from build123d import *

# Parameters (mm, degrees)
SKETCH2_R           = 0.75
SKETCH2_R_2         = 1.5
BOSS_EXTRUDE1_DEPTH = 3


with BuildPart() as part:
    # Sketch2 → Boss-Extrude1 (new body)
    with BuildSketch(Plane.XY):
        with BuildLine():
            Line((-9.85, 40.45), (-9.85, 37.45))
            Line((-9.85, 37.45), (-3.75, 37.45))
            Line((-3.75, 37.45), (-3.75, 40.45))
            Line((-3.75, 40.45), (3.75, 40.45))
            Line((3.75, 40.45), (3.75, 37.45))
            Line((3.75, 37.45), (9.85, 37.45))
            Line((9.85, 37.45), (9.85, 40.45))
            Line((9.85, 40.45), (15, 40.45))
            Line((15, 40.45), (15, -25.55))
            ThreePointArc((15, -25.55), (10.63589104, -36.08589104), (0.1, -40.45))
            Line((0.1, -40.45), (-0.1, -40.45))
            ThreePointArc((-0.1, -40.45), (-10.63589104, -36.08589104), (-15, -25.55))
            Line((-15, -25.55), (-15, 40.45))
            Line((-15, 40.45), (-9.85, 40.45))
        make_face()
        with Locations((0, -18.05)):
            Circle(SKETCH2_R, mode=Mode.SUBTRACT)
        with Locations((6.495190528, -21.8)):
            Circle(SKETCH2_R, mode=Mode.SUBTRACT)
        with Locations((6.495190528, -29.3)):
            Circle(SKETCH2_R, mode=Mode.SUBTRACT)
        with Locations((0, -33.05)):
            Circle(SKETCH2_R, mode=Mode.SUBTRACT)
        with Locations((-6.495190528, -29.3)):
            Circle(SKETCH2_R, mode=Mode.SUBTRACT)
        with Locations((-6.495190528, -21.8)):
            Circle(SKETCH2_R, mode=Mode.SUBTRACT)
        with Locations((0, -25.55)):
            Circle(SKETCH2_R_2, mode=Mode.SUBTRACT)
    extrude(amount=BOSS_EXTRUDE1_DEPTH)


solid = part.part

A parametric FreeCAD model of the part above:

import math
import FreeCAD as App
import Part
import Sketcher
from FreeCAD import Vector
Q = App.Units.Quantity

doc = App.newDocument("Part")
body = doc.addObject("PartDesign::Body", "Body")

sketch1 = body.newObject("Sketcher::SketchObject", "Sketch")
sketch1.AttachmentSupport = (doc.getObject("XY_Plane"), [""])
sketch1.MapMode = "FlatFace"
sketch1.addGeometry([
    Part.LineSegment(Vector(-9.85, 37.45, 0), Vector(-9.85, 40.45, 0)),
    Part.LineSegment(Vector(-9.85, 40.45, 0), Vector(-15, 40.45, 0)),
    Part.LineSegment(Vector(-15, 40.45, 0), Vector(-15, -25.55, 0)),
    Part.ArcOfCircle(Part.Circle(Vector(-0.1, -25.55, 0), Vector(0, 0, 1), 14.9), math.radians(180), math.radians(270)),
    Part.LineSegment(Vector(-0.1, -40.45, 0), Vector(0.1, -40.45, 0)),
    Part.ArcOfCircle(Part.Circle(Vector(0.1, -25.55, 0), Vector(0, 0, 1), 14.9), math.radians(-90), math.radians(0)),
    Part.LineSegment(Vector(15, -25.55, 0), Vector(15, 40.45, 0)),
    Part.LineSegment(Vector(15, 40.45, 0), Vector(9.85, 40.45, 0)),
    Part.LineSegment(Vector(9.85, 40.45, 0), Vector(9.85, 37.45, 0)),
    Part.LineSegment(Vector(9.85, 37.45, 0), Vector(3.75, 37.45, 0)),
    Part.LineSegment(Vector(3.75, 37.45, 0), Vector(3.75, 40.45, 0)),
    Part.LineSegment(Vector(3.75, 40.45, 0), Vector(-3.75, 40.45, 0)),
    Part.LineSegment(Vector(-3.75, 40.45, 0), Vector(-3.75, 37.45, 0)),
    Part.LineSegment(Vector(-3.75, 37.45, 0), Vector(-9.85, 37.45, 0)),
    Part.Circle(Vector(6.5, -29.3, 0), Vector(0, 0, 1), 0.75),
    Part.Circle(Vector(0, -33.05, 0), Vector(0, 0, 1), 0.75),
    Part.Circle(Vector(0, -25.55, 0), Vector(0, 0, 1), 1.5),
    Part.Circle(Vector(-6.5, -29.3, 0), Vector(0, 0, 1), 0.75),
    Part.Circle(Vector(6.5, -21.8, 0), Vector(0, 0, 1), 0.75),
    Part.Circle(Vector(-6.5, -21.8, 0), Vector(0, 0, 1), 0.75),
    Part.Circle(Vector(0, -18.05, 0), Vector(0, 0, 1), 0.75),
], False)
sketch1.addConstraint([
    Sketcher.Constraint("Coincident", 0, 2, 1, 1),
    Sketcher.Constraint("Coincident", 1, 2, 2, 1),
    Sketcher.Constraint("Tangent", 2, 2, 3, 1),
    Sketcher.Constraint("Tangent", 3, 2, 4, 1),
    Sketcher.Constraint("Tangent", 4, 2, 5, 1),
    Sketcher.Constraint("Tangent", 5, 2, 6, 1),
    Sketcher.Constraint("Coincident", 6, 2, 7, 1),
    Sketcher.Constraint("Coincident", 7, 2, 8, 1),
    Sketcher.Constraint("Coincident", 8, 2, 9, 1),
    Sketcher.Constraint("Coincident", 9, 2, 10, 1),
    Sketcher.Constraint("Coincident", 10, 2, 11, 1),
    Sketcher.Constraint("Coincident", 11, 2, 12, 1),
    Sketcher.Constraint("Coincident", 12, 2, 13, 1),
    Sketcher.Constraint("Coincident", 13, 2, 0, 1),
    Sketcher.Constraint("Vertical", 0),
    Sketcher.Constraint("Horizontal", 1),
    Sketcher.Constraint("Vertical", 2),
    Sketcher.Constraint("Horizontal", 4),
    Sketcher.Constraint("Vertical", 6),
    Sketcher.Constraint("Horizontal", 7),
    Sketcher.Constraint("Vertical", 8),
    Sketcher.Constraint("Horizontal", 9),
    Sketcher.Constraint("Vertical", 10),
    Sketcher.Constraint("Horizontal", 11),
    Sketcher.Constraint("Vertical", 12),
    Sketcher.Constraint("Horizontal", 13),
    Sketcher.Constraint("Equal", 3, 5),
    Sketcher.Constraint("Equal", 14, 15),
    Sketcher.Constraint("Equal", 15, 17),
    Sketcher.Constraint("Equal", 17, 18),
    Sketcher.Constraint("Equal", 18, 19),
    Sketcher.Constraint("Equal", 19, 20),
    Sketcher.Constraint("Symmetric", 14, 3, 17, 3, -2),
    Sketcher.Constraint("Symmetric", 18, 3, 19, 3, -2),
    Sketcher.Constraint("Symmetric", 1, 2, 6, 2, -2),
    Sketcher.Constraint("Symmetric", 9, 2, 12, 2, -2),
    Sketcher.Constraint("PointOnObject", 15, 3, -2),
    Sketcher.Constraint("PointOnObject", 16, 3, -2),
    Sketcher.Constraint("PointOnObject", 20, 3, -2),
    Sketcher.Constraint("Horizontal", 5, 3, 16, 3),
    Sketcher.Constraint("Horizontal", 7, 2, 10, 2),
    Sketcher.Constraint("Vertical", 14, 3, 18, 3),
    Sketcher.Constraint("Equal", 1, 7),
    Sketcher.Constraint("Diameter", 16, Q("3 mm")),
    Sketcher.Constraint("Diameter", 14, Q("1.5 mm")),
    Sketcher.Constraint("Radius", 3, Q("14.9 mm")),
    Sketcher.Constraint("DistanceY", 0, 1, 0, 2, Q("3 mm")),
    Sketcher.Constraint("DistanceY", 2, 2, 2, 1, Q("66 mm")),
    Sketcher.Constraint("DistanceX", 4, 1, 4, 2, Q("0.2 mm")),
    Sketcher.Constraint("DistanceX", 9, 2, 9, 1, Q("6.1 mm")),
    Sketcher.Constraint("DistanceX", 11, 2, 11, 1, Q("7.5 mm")),
    Sketcher.Constraint("DistanceY", 14, 3, -1, 1, Q("29.3 mm")),
    Sketcher.Constraint("DistanceY", 18, 3, -1, 1, Q("21.8 mm")),
    Sketcher.Constraint("DistanceY", 15, 3, 3, 3, Q("7.5 mm")),
    Sketcher.Constraint("DistanceY", 16, 3, 20, 3, Q("7.5 mm")),
    Sketcher.Constraint("DistanceY", 3, 3, -1, 1, Q("25.55 mm")),
    Sketcher.Constraint("DistanceX", -1, 1, 14, 3, Q("6.495191 mm")),
])
pad1 = body.newObject("PartDesign::Pad", "Pad")
pad1.Profile = sketch1
pad1.Length = 3

doc.recompute()
